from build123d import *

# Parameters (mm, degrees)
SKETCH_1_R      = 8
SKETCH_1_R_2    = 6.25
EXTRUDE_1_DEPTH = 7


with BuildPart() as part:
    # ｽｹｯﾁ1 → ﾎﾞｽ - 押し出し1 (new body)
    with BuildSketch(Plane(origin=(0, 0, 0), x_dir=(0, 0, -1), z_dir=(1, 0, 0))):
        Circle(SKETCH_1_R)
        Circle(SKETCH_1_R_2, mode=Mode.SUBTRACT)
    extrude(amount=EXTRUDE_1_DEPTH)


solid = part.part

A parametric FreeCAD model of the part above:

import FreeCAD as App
import Part
import Sketcher
from FreeCAD import Vector

doc = App.newDocument("Part")
body = doc.addObject("PartDesign::Body", "Body")

sketch1 = doc.addObject("Sketcher::SketchObject", "Sketch")
body.addObject(sketch1)
sketch1.AttachmentSupport = (doc.YZ_Plane, [""])
sketch1.MapMode = "FlatFace"
sketch1.addGeometry([
    Part.Circle(Vector(0, 0, 0), Vector(0, 0, 1), 8),
    Part.Circle(Vector(0, 0, 0), Vector(0, 0, 1), 6),
], False)
sketch1.addConstraint([
    Sketcher.Constraint("Coincident", 0, 3, -1, 1),
    Sketcher.Constraint("Coincident", 1, 3, -1, 1),
    Sketcher.Constraint("Diameter", 0, 16.0),
    Sketcher.Constraint("Diameter", 1, 12.5),
])
pad1 = doc.addObject("PartDesign::Pad", "Pad")
body.addObject(pad1)
pad1.Profile = sketch1
pad1.Length = 7

doc.recompute()
